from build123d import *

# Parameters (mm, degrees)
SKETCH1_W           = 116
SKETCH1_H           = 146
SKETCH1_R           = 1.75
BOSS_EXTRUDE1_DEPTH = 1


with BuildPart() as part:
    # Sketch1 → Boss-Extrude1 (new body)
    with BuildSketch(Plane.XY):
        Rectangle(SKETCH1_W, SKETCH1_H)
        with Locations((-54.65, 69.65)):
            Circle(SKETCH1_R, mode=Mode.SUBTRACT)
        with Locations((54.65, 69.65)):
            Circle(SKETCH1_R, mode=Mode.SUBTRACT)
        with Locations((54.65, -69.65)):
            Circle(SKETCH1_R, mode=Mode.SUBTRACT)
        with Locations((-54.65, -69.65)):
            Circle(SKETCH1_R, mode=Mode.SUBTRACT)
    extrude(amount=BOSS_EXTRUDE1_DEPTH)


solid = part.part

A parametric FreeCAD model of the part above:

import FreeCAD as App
import Part
import Sketcher
from FreeCAD import Vector
Q = App.Units.Quantity

doc = App.newDocument("Part")
body = doc.addObject("PartDesign::Body", "Body")

# Sketch on XY plane
sketch1 = doc.addObject("Sketcher::SketchObject", "Sketch")
body.addObject(sketch1)
sketch1.AttachmentSupport = (doc.XY_Plane, [""])
sketch1.MapMode = "FlatFace"
sketch1.addGeometry(Part.LineSegment(Vector(-58, 73, 0), Vector(-58, -73, 0)), False)
sketch1.addGeometry(Part.LineSegment(Vector(-58, -73, 0), Vector(58, -73, 0)), False)
sketch1.addGeometry(Part.LineSegment(Vector(58, -73, 0), Vector(58, 73, 0)), False)
sketch1.addGeometry(Part.LineSegment(Vector(58, 73, 0), Vector(-58, 73, 0)), False)
sketch1.addGeometry(Part.Circle(Vector(-54.65, -69.65, 0), Vector(0, 0, 1), 1.75), False)
sketch1.addGeometry(Part.Circle(Vector(54.65, -69.65, 0), Vector(0, 0, 1), 1.75), False)
sketch1.addGeometry(Part.Circle(Vector(-54.65, 69.65, 0), Vector(0, 0, 1), 1.75), False)
sketch1.addGeometry(Part.Circle(Vector(54.65, 69.65, 0), Vector(0, 0, 1), 1.75), False)
sketch1.addConstraint(Sketcher.Constraint("Coincident", 0, 2, 1, 1))
sketch1.addConstraint(Sketcher.Constraint("Coincident", 1, 2, 2, 1))
sketch1.addConstraint(Sketcher.Constraint("Coincident", 2, 2, 3, 1))
sketch1.addConstraint(Sketcher.Constraint("Coincident", 3, 2, 0, 1))
sketch1.addConstraint(Sketcher.Constraint("Vertical", 0))
sketch1.addConstraint(Sketcher.Constraint("Horizontal", 1))
sketch1.addConstraint(Sketcher.Constraint("Vertical", 2))
sketch1.addConstraint(Sketcher.Constraint("Horizontal", 3))
sketch1.addConstraint(Sketcher.Constraint("Equal", 4, 5))
sketch1.addConstraint(Sketcher.Constraint("Equal", 5, 6))
sketch1.addConstraint(Sketcher.Constraint("Equal", 6, 7))
sketch1.addConstraint(Sketcher.Constraint("Symmetric", 5, 3, 6, 3, -1, 1))
sketch1.addConstraint(Sketcher.Constraint("Symmetric", 4, 3, 7, 3, -1, 1))
sketch1.addConstraint(Sketcher.Constraint("Symmetric", 0, 2, 2, 2, -1, 1))
sketch1.addConstraint(Sketcher.Constraint("Symmetric", 4, 3, 5, 3, -2))
sketch1.addConstraint(Sketcher.Constraint("Diameter", 4, Q("3.5 mm")))
sketch1.addConstraint(Sketcher.Constraint("DistanceX", 1, 1, 1, 2, Q("116 mm")))
sketch1.addConstraint(Sketcher.Constraint("DistanceY", 0, 2, 0, 1, Q("146 mm")))
sketch1.addConstraint(Sketcher.Constraint("DistanceX", 4, 3, 5, 3, Q("109.3 mm")))
sketch1.addConstraint(Sketcher.Constraint("DistanceY", 4, 3, 6, 3, Q("139.3 mm")))
pad1 = doc.addObject("PartDesign::Pad", "Pad")
body.addObject(pad1)
pad1.Profile = sketch1
pad1.Length = 1

doc.recompute()
